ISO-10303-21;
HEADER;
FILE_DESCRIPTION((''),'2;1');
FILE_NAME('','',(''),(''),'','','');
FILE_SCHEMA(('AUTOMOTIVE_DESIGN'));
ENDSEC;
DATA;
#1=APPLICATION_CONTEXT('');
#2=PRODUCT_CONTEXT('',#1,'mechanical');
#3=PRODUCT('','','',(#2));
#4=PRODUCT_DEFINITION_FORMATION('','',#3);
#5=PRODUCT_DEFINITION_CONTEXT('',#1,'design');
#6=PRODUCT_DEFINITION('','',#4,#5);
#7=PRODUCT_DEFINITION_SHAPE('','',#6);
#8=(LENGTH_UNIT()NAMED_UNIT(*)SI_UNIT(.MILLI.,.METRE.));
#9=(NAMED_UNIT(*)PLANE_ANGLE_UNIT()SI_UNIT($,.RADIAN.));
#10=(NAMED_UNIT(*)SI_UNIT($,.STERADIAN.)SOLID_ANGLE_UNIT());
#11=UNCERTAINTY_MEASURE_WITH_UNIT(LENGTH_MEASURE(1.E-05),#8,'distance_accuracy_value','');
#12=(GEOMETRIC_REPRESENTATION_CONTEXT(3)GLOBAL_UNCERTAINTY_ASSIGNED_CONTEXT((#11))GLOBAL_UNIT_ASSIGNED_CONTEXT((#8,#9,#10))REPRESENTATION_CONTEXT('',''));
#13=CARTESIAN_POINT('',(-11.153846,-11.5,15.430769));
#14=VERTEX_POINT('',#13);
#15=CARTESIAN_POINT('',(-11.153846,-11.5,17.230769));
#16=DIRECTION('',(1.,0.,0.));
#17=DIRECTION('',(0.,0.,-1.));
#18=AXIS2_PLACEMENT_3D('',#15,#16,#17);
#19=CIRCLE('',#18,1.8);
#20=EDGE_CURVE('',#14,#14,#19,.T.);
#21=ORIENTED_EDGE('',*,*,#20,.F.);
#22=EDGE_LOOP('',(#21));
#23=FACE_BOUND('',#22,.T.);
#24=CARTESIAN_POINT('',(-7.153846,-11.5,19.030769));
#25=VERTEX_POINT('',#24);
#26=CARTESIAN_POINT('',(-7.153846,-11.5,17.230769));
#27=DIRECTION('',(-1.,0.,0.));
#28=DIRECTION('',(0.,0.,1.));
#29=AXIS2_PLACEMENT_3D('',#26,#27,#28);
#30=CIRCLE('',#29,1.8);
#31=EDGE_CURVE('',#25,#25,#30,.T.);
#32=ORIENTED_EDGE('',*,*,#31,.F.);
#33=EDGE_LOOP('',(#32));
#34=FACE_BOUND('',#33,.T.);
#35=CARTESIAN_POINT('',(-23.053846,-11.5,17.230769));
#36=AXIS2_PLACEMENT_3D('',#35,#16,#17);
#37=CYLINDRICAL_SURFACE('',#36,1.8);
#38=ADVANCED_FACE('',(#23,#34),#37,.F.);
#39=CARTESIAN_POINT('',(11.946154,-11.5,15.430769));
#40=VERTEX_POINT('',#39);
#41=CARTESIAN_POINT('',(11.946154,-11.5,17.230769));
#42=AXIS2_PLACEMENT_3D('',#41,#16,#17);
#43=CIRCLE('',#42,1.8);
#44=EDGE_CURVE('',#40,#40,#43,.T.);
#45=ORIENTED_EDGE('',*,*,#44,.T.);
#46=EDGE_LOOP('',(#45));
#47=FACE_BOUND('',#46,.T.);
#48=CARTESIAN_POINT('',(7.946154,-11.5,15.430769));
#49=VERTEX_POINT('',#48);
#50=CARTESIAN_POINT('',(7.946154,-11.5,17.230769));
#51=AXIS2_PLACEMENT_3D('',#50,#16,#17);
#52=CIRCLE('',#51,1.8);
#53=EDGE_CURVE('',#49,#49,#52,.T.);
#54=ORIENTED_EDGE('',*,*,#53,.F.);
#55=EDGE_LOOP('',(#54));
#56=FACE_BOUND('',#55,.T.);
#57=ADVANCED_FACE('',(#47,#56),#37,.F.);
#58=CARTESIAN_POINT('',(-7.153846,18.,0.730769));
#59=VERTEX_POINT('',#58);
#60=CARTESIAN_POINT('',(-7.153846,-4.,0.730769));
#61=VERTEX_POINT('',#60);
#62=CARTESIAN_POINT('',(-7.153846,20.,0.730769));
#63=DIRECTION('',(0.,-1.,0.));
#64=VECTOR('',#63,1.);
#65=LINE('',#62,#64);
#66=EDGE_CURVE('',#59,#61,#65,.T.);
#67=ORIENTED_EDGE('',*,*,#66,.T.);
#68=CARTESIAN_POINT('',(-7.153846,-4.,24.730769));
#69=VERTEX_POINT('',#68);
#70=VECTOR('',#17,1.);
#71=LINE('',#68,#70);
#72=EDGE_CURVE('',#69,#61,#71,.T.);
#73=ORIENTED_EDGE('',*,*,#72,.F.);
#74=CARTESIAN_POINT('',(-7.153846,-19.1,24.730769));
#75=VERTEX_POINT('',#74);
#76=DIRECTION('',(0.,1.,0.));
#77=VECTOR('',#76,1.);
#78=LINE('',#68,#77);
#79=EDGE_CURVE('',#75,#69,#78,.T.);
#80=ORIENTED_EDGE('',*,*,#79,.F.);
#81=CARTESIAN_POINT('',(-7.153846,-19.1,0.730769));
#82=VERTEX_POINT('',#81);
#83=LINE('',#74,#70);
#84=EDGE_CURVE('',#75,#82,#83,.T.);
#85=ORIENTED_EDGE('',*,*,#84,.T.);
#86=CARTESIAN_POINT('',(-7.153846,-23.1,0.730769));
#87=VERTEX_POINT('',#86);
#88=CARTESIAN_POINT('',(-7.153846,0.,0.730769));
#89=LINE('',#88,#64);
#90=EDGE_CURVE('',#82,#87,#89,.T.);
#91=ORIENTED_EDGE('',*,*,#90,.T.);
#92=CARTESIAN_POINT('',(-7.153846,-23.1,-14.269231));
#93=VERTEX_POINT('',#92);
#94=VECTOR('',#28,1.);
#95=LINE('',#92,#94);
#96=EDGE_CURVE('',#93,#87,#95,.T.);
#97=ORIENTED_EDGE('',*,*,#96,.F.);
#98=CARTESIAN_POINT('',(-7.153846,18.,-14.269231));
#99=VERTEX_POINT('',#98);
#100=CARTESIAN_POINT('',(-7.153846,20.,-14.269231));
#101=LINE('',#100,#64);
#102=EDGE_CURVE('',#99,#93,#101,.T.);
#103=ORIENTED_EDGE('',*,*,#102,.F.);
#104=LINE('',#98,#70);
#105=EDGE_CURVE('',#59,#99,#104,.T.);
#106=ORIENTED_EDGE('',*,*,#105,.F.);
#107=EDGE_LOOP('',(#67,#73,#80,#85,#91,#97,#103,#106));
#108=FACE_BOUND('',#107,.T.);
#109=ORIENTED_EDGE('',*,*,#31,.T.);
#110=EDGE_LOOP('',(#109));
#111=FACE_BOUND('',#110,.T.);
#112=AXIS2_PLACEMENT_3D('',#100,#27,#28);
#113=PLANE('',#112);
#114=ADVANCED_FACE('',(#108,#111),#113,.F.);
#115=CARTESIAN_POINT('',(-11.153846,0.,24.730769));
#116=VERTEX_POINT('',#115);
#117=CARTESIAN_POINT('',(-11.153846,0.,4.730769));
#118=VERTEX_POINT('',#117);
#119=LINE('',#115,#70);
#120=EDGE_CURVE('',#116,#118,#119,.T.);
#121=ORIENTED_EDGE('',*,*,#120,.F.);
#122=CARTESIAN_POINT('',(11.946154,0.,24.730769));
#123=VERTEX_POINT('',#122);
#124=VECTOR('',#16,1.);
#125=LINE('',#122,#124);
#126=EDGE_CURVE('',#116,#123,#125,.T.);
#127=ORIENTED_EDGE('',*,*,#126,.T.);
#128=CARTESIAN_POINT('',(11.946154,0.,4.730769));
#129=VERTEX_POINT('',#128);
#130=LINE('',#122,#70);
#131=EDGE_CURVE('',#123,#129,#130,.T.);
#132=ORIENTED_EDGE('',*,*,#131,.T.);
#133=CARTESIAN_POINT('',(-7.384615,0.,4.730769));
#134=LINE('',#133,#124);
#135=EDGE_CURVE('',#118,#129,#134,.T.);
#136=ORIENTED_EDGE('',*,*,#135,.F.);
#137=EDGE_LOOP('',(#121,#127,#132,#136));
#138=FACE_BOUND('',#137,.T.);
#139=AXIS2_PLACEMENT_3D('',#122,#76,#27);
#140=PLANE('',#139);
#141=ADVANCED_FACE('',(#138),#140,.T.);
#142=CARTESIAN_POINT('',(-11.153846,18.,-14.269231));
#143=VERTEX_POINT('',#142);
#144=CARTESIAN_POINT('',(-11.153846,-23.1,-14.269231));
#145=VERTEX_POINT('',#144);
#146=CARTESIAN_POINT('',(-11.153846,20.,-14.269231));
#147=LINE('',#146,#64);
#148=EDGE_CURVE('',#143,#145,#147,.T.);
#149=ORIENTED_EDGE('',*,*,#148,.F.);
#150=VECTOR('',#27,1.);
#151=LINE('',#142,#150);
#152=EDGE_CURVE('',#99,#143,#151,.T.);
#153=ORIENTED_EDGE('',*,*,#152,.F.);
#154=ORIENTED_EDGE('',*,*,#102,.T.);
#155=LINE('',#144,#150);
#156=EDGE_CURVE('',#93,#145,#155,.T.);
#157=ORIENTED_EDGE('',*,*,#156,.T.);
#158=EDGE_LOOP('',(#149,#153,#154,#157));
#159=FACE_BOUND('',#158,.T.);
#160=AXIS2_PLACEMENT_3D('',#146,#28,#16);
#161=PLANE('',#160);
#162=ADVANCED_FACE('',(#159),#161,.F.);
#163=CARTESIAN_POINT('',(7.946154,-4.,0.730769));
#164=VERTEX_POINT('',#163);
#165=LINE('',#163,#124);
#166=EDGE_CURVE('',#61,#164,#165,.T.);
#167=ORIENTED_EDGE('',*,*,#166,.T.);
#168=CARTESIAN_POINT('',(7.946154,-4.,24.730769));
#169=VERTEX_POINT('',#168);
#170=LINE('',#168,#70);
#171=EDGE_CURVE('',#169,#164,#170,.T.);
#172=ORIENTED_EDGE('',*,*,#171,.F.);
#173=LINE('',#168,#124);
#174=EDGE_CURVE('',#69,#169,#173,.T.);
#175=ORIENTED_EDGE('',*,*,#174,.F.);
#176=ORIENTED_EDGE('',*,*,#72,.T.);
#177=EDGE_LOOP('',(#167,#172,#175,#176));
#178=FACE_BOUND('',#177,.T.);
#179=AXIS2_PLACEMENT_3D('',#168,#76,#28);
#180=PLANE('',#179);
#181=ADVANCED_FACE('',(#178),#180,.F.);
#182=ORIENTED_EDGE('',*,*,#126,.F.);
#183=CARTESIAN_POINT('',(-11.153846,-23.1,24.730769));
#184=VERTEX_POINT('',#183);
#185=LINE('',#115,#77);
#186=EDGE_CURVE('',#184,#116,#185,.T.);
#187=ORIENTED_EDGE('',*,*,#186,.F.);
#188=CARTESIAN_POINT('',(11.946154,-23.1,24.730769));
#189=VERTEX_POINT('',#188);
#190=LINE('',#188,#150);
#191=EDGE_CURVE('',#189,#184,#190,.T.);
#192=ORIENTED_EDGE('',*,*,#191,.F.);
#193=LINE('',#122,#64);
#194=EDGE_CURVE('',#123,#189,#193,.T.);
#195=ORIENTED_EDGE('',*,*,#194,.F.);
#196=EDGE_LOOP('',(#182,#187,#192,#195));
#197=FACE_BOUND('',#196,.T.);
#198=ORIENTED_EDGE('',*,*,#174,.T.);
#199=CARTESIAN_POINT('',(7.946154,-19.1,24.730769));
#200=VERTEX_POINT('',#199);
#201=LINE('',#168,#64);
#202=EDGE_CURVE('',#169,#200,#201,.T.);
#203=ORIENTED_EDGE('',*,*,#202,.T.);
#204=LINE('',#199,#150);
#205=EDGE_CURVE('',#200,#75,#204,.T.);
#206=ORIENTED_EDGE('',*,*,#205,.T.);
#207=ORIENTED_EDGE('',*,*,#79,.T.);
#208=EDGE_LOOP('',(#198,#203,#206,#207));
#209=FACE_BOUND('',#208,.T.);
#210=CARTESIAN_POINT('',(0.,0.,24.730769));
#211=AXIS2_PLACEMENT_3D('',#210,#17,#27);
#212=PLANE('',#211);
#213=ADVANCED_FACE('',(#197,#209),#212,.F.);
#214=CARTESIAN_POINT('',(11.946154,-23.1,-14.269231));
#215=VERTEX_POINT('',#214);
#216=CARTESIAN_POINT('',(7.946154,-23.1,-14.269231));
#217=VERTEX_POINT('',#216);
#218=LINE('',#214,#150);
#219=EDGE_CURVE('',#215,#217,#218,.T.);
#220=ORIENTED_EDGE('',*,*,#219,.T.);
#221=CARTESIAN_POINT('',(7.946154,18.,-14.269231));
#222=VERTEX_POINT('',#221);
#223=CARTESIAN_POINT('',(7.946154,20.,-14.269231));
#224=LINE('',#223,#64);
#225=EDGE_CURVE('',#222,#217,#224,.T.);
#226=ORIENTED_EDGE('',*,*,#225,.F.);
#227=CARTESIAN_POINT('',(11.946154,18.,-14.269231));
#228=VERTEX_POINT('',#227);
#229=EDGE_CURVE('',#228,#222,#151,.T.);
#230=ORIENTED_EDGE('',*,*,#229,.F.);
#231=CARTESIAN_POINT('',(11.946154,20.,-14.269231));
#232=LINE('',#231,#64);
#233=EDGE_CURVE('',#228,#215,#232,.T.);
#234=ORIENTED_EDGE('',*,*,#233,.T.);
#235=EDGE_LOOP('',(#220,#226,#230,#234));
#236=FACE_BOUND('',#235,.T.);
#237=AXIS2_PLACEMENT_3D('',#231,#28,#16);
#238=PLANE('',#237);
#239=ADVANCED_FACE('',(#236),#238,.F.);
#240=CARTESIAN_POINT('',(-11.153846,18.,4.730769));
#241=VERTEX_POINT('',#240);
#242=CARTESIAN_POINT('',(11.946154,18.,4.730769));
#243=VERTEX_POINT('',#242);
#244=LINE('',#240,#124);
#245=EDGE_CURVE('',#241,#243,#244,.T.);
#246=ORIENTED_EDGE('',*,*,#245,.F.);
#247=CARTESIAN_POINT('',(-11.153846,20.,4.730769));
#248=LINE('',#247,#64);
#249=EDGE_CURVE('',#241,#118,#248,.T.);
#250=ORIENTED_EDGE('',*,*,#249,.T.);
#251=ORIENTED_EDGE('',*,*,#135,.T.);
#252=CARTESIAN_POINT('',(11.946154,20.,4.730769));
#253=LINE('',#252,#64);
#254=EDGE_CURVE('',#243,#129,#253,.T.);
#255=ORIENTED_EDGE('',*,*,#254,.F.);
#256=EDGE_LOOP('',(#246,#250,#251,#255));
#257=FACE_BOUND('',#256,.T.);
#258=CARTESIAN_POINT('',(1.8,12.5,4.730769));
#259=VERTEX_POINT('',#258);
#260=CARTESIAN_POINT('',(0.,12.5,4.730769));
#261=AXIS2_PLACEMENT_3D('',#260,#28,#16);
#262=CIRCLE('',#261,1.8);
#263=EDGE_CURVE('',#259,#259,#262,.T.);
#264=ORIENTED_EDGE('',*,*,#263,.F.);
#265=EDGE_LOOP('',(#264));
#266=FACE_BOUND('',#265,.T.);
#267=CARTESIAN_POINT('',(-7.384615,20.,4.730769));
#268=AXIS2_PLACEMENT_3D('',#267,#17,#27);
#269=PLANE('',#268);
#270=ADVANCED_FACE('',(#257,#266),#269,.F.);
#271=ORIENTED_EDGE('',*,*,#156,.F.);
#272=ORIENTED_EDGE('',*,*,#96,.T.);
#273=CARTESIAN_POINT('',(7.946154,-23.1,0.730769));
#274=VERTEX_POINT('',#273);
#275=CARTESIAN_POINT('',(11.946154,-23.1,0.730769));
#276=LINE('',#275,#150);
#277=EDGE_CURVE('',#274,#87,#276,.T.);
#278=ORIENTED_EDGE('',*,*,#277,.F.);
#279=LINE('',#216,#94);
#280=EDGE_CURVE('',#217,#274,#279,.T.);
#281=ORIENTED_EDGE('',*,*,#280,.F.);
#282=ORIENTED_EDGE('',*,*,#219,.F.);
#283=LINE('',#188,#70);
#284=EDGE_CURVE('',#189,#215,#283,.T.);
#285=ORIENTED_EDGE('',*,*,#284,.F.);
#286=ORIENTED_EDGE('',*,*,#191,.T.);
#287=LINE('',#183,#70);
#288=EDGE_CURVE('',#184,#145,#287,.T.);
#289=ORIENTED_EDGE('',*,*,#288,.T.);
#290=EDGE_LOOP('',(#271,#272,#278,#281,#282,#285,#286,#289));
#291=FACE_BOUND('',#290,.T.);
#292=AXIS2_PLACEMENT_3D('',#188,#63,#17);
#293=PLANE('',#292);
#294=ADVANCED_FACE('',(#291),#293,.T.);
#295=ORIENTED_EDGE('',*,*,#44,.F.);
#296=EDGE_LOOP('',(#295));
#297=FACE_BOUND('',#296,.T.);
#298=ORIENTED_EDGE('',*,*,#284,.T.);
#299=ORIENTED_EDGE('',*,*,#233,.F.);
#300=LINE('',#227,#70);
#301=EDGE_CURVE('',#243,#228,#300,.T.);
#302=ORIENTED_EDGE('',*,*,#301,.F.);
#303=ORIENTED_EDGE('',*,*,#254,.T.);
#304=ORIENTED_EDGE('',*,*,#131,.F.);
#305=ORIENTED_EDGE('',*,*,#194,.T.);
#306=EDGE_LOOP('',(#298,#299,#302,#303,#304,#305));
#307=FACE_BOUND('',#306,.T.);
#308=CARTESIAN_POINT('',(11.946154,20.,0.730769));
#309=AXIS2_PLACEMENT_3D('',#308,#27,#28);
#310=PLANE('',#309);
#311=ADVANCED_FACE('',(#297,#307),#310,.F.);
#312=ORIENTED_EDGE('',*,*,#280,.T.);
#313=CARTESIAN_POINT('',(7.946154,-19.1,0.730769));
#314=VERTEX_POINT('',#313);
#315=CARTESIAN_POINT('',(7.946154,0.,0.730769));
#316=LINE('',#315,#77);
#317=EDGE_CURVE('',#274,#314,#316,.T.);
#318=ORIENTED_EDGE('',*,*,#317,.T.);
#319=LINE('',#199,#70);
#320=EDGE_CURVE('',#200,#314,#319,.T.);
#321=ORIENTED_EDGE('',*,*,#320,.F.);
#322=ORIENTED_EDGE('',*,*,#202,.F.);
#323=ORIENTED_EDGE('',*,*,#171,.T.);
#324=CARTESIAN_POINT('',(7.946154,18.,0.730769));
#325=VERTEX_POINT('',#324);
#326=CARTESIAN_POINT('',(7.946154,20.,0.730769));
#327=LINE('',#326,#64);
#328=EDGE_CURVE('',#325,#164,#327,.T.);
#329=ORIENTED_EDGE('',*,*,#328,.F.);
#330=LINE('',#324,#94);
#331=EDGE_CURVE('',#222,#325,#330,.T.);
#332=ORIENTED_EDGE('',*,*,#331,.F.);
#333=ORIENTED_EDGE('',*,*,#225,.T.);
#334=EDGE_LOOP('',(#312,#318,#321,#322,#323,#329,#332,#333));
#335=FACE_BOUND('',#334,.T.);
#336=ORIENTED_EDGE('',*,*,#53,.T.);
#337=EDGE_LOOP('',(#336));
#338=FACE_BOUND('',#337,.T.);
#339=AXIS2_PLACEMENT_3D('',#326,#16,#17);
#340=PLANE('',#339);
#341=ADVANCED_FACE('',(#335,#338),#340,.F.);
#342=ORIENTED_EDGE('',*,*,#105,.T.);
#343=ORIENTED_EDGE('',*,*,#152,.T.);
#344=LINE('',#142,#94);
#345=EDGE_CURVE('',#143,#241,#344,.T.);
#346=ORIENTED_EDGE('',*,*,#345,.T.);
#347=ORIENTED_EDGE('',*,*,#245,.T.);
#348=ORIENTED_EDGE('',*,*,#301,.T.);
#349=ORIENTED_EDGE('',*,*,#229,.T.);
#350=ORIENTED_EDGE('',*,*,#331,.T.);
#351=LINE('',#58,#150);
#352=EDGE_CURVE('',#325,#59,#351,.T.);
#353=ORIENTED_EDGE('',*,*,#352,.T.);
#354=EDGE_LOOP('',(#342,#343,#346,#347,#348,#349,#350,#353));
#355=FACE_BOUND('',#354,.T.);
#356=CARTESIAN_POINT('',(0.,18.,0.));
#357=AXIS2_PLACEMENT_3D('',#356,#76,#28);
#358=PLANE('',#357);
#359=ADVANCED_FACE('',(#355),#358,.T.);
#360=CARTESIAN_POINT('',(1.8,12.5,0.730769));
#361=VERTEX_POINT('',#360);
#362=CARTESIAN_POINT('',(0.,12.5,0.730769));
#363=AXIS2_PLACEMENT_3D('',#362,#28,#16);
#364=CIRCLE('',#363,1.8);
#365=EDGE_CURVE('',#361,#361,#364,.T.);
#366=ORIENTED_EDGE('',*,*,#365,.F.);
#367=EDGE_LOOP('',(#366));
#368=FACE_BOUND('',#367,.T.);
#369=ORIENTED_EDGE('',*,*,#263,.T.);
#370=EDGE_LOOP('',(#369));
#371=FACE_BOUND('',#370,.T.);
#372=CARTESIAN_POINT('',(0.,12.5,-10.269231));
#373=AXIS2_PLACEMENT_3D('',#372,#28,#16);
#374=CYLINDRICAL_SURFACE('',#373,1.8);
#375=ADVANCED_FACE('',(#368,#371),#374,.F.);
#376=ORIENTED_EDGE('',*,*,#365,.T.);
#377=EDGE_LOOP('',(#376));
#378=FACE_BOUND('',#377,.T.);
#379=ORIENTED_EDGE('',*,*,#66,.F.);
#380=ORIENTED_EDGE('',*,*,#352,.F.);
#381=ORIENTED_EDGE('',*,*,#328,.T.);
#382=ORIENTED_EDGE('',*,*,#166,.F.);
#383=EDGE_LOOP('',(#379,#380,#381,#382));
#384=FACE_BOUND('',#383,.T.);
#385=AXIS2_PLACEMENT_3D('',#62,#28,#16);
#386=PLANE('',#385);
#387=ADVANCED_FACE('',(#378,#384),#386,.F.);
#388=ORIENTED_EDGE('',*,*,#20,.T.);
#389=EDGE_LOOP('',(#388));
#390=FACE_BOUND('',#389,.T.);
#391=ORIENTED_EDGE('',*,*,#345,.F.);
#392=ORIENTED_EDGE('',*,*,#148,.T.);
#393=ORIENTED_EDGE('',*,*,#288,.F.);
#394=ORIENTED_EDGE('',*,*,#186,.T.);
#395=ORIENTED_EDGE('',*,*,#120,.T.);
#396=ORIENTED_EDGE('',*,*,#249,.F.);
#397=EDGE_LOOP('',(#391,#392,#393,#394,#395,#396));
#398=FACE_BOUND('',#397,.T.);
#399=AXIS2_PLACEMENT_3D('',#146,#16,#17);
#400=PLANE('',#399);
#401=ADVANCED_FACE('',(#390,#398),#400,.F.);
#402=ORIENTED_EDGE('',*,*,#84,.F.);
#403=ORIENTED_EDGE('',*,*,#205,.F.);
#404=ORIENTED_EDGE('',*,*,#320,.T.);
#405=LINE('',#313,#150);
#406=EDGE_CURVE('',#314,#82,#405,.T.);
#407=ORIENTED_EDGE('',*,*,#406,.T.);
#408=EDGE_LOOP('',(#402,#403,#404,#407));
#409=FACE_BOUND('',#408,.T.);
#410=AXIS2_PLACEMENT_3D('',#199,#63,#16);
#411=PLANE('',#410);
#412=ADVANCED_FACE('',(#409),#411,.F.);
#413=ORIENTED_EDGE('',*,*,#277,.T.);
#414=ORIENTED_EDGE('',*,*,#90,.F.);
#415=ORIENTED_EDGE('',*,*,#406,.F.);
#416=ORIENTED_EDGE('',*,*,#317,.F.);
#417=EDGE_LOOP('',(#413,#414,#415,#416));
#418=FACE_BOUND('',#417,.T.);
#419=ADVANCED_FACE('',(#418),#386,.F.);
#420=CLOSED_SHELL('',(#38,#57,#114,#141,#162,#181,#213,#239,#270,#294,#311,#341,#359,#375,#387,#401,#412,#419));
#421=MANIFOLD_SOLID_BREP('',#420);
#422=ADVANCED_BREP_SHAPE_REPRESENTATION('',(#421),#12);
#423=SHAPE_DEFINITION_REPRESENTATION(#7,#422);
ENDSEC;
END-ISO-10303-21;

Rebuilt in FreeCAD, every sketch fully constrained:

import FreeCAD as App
import Part
import Sketcher
from FreeCAD import Vector


def add_polygon(sketch, points):
    """Adds a closed chain of lines whose ends are joined by coincident constraints."""
    first, n = sketch.GeometryCount, len(points)
    for a, b in zip(points, points[1:] + points[:1]):
        sketch.addGeometry(Part.LineSegment(App.Vector(*a, 0), App.Vector(*b, 0)), False)
    for i in range(n):
        sketch.addConstraint(Sketcher.Constraint("Coincident", first + i, 2, first + (i + 1) % n, 1))

doc = App.newDocument("Part")
body = doc.addObject("PartDesign::Body", "Body")

sketch1 = body.newObject("Sketcher::SketchObject", "Sketch")
sketch1.AttachmentSupport = (doc.getObject("XZ_Plane"), [""])
sketch1.MapMode = "FlatFace"
add_polygon(sketch1, [(-7.2, -14.3), (-11.2, -14.3), (-11.2, 4.7), (11.9, 4.7), (11.9, -14.3), (7.9, -14.3), (7.9, 0.7), (-7.2, 0.7)])
sketch1.addConstraint([
    Sketcher.Constraint("Horizontal", 0),
    Sketcher.Constraint("Vertical", 1),
    Sketcher.Constraint("Horizontal", 2),
    Sketcher.Constraint("Vertical", 3),
    Sketcher.Constraint("Horizontal", 4),
    Sketcher.Constraint("Vertical", 5),
    Sketcher.Constraint("Horizontal", 6),
    Sketcher.Constraint("Vertical", 7),
    Sketcher.Constraint("Horizontal", 0, 2, 3, 2),
    Sketcher.Constraint("Equal", 0, 4),
    Sketcher.Constraint("DistanceX", 0, 2, 0, 1, 4.0),
    Sketcher.Constraint("DistanceY", 1, 1, 1, 2, 19.0),
    Sketcher.Constraint("DistanceY", 5, 1, 5, 2, 15.0),
    Sketcher.Constraint("DistanceX", 2, 1, 2, 2, 23.1),
    Sketcher.Constraint("DistanceY", 0, 2, -1, 1, 14.269231),
    Sketcher.Constraint("DistanceX", 0, 2, -1, 1, 11.153846),
])
pad1 = body.newObject("PartDesign::Pad", "Pad")
pad1.Profile = sketch1
pad1.Length = 20
pad1.Reversed = True

sketch2 = body.newObject("Sketcher::SketchObject", "Sketch001")
sketch2.AttachmentSupport = (doc.getObject("XY_Plane"), [""])
sketch2.MapMode = "FlatFace"
sketch2.AttachmentOffset = App.Placement(Vector(0, 0, 0.730769), App.Rotation())
add_polygon(sketch2, [(12, 0), (12, -23), (-11, -23), (-11, 0)])
add_polygon(sketch2, [(-7, -19), (8, -19), (8, -4), (-7, -4)])
sketch2.addConstraint([
    Sketcher.Constraint("Vertical", 0),
    Sketcher.Constraint("Horizontal", 1),
    Sketcher.Constraint("Vertical", 2),
    Sketcher.Constraint("Horizontal", 3),
    Sketcher.Constraint("Horizontal", 4),
    Sketcher.Constraint("Vertical", 5),
    Sketcher.Constraint("Horizontal", 6),
    Sketcher.Constraint("Vertical", 7),
    Sketcher.Constraint("PointOnObject", 2, 2, -1),
    Sketcher.Constraint("Equal", 3, 0),
    Sketcher.Constraint("Equal", 6, 5),
    Sketcher.Constraint("DistanceX", 1, 2, 1, 1, 23.1),
    Sketcher.Constraint("DistanceX", 4, 1, 4, 2, 15.1),
    Sketcher.Constraint("DistanceY", 5, 2, -1, 1, 4.0),
    Sketcher.Constraint("DistanceX", 4, 2, 0, 2, 4.0),
    Sketcher.Constraint("DistanceX", -1, 1, 0, 2, 11.946154),
])
pad2 = body.newObject("PartDesign::Pad", "Pad001")
pad2.Profile = sketch2
pad2.Length = 24

sketch3 = body.newObject("Sketcher::SketchObject", "Sketch002")
sketch3.AttachmentSupport = (doc.getObject("XY_Plane"), [""])
sketch3.MapMode = "FlatFace"
sketch3.AttachmentOffset = App.Placement(Vector(0, 0, 0.730769), App.Rotation())
add_polygon(sketch3, [(11.9, 0), (11.9, -23.1), (7.9, -23.1), (7.9, 0)])
add_polygon(sketch3, [(-7.2, 0), (-7.2, -23.1), (-11.2, -23.1), (-11.2, 0)])
sketch3.addConstraint([
    Sketcher.Constraint("Vertical", 0),
    Sketcher.Constraint("Horizontal", 1),
    Sketcher.Constraint("Vertical", 2),
    Sketcher.Constraint("Horizontal", 3),
    Sketcher.Constraint("Vertical", 4),
    Sketcher.Constraint("Horizontal", 5),
    Sketcher.Constraint("Vertical", 6),
    Sketcher.Constraint("Horizontal", 7),
    Sketcher.Constraint("PointOnObject", 2, 2, -1),
    Sketcher.Constraint("PointOnObject", 6, 2, -1),
    Sketcher.Constraint("Horizontal", 1, 2, 4, 2),
    Sketcher.Constraint("Equal", 3, 5),
    Sketcher.Constraint("DistanceX", 1, 2, 1, 1, 4.0),
    Sketcher.Constraint("DistanceY", 0, 2, 0, 1, 23.1),
    Sketcher.Constraint("DistanceX", 4, 2, 1, 2, 15.1),
    Sketcher.Constraint("DistanceX", -1, 1, 0, 2, 11.946154),
])
pad3 = body.newObject("PartDesign::Pad", "Pad002")
pad3.Profile = sketch3
pad3.Length = 15
pad3.Reversed = True

sketch4 = body.newObject("Sketcher::SketchObject", "Sketch003")
sketch4.AttachmentSupport = (doc.getObject("XY_Plane"), [""])
sketch4.MapMode = "FlatFace"
sketch4.AttachmentOffset = App.Placement(Vector(0, 0, 4.730769), App.Rotation())
sketch4.addGeometry(Part.Circle(Vector(0, 12.5, 0), Vector(0, 0, 1), 1.8), False)
sketch4.addConstraint([
    Sketcher.Constraint("PointOnObject", 0, 3, -2),
    Sketcher.Constraint("Diameter", 0, 3.6),
    Sketcher.Constraint("DistanceY", -1, 1, 0, 3, 12.5),
])
pocket1 = body.newObject("PartDesign::Pocket", "Pocket")
pocket1.Profile = sketch4
pocket1.Length = 15

sketch5 = body.newObject("Sketcher::SketchObject", "Sketch004")
sketch5.AttachmentSupport = (doc.getObject("YZ_Plane"), [""])
sketch5.MapMode = "FlatFace"
sketch5.AttachmentOffset = App.Placement(Vector(0, 0, 11.946154), App.Rotation())
sketch5.addGeometry(Part.Circle(Vector(-11.5, 17.2, 0), Vector(0, 0, 1), 1.8), False)
sketch5.addConstraint([
    Sketcher.Constraint("Diameter", 0, 3.6),
    Sketcher.Constraint("DistanceX", 0, 3, -1, 1, 11.5),
    Sketcher.Constraint("DistanceY", -1, 1, 0, 3, 17.230769),
])
pocket2 = body.newObject("PartDesign::Pocket", "Pocket001")
pocket2.Profile = sketch5
pocket2.Length = 35

sketch6 = body.newObject("Sketcher::SketchObject", "Sketch005")
sketch6.AttachmentSupport = (doc.getObject("XZ_Plane"), [""])
sketch6.MapMode = "FlatFace"
sketch6.AttachmentOffset = App.Placement(Vector(0, 0, -20), App.Rotation())
add_polygon(sketch6, [(-11, -14), (-11, 5), (12, 5), (12, -14)])
sketch6.addConstraint([
    Sketcher.Constraint("Vertical", 0),
    Sketcher.Constraint("Horizontal", 1),
    Sketcher.Constraint("Vertical", 2),
    Sketcher.Constraint("Horizontal", 3),
    Sketcher.Constraint("DistanceY", 0, 1, 0, 2, 19.0),
    Sketcher.Constraint("DistanceX", 1, 1, 1, 2, 23.1),
    Sketcher.Constraint("DistanceY", -1, 1, 0, 2, 4.730769),
    Sketcher.Constraint("DistanceX", 0, 2, -1, 1, 11.153846),
])
pocket3 = body.newObject("PartDesign::Pocket", "Pocket002")
pocket3.Profile = sketch6
pocket3.Length = 2
pocket3.Reversed = True

doc.recompute()
